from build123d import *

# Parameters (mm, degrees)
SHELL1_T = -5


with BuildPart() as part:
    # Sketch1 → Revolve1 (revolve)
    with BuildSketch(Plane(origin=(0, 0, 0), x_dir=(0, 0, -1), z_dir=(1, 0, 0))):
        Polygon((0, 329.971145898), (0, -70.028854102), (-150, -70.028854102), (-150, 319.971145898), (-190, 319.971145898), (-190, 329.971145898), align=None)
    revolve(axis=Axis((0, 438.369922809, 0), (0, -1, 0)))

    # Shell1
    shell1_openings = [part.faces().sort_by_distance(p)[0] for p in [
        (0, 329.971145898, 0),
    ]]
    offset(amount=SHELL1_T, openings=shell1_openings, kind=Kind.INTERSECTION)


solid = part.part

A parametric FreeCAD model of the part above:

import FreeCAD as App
import Part
import Sketcher

V = App.Vector


def faces_at(feature, points):
    """Names of the faces that lie closest to the given points."""
    faces = feature.Shape.Faces
    near = lambda p: min(range(len(faces)), key=lambda i: faces[i].distToShape(Part.Vertex(*p))[0])
    return sorted({f"Face{near(p) + 1}" for p in points})

doc = App.newDocument("Part")
body = doc.addObject("PartDesign::Body", "Body")

sketch1 = body.newObject("Sketcher::SketchObject", "Sketch")
sketch1.AttachmentSupport = (doc.getObject("YZ_Plane"), [""])
sketch1.MapMode = "FlatFace"
sketch1.addGeometry(Part.LineSegment(V(-70.028854, 0, 0), V(329.971146, 0, 0)), False)
sketch1.addGeometry(Part.LineSegment(V(329.971146, 0, 0), V(329.971146, 190, 0)), False)
sketch1.addGeometry(Part.LineSegment(V(329.971146, 190, 0), V(319.971146, 190, 0)), False)
sketch1.addGeometry(Part.LineSegment(V(319.971146, 190, 0), V(319.971146, 150, 0)), False)
sketch1.addGeometry(Part.LineSegment(V(319.971146, 150, 0), V(-70.028854, 150, 0)), False)
sketch1.addGeometry(Part.LineSegment(V(-70.028854, 150, 0), V(-70.028854, 0, 0)), False)
sketch1.addConstraint(Sketcher.Constraint("Coincident", 0, 2, 1, 1))
sketch1.addConstraint(Sketcher.Constraint("Coincident", 1, 2, 2, 1))
sketch1.addConstraint(Sketcher.Constraint("Coincident", 2, 2, 3, 1))
sketch1.addConstraint(Sketcher.Constraint("Coincident", 3, 2, 4, 1))
sketch1.addConstraint(Sketcher.Constraint("Coincident", 4, 2, 5, 1))
sketch1.addConstraint(Sketcher.Constraint("Coincident", 5, 2, 0, 1))
sketch1.addConstraint(Sketcher.Constraint("Horizontal", 0))
sketch1.addConstraint(Sketcher.Constraint("Vertical", 1))
sketch1.addConstraint(Sketcher.Constraint("Horizontal", 2))
sketch1.addConstraint(Sketcher.Constraint("Vertical", 3))
sketch1.addConstraint(Sketcher.Constraint("Horizontal", 4))
sketch1.addConstraint(Sketcher.Constraint("Vertical", 5))
sketch1.addConstraint(Sketcher.Constraint("PointOnObject", 0, 2, -1))
sketch1.addConstraint(Sketcher.Constraint("DistanceX", 0, 1, 0, 2, 400.0))
sketch1.addConstraint(Sketcher.Constraint("DistanceX", 2, 2, 2, 1, 10.0))
sketch1.addConstraint(Sketcher.Constraint("DistanceY", 1, 1, 1, 2, 190.0))
sketch1.addConstraint(Sketcher.Constraint("DistanceY", 3, 2, 3, 1, 40.0))
sketch1.addConstraint(Sketcher.Constraint("DistanceX", -1, 1, 0, 2, 329.971146))
revolution = body.newObject("PartDesign::Revolution", "Revolution")
revolution.Profile = sketch1
revolution.ReferenceAxis = (sketch1, ["H_Axis"])
revolution.Angle = 360
doc.recompute()

thickness = body.newObject("PartDesign::Thickness", "Thickness")
thickness.Base = (revolution, faces_at(revolution, [(0, 329.971, 0)]))
thickness.Value = 5
thickness.Reversed = True
thickness.Join = "Intersection"

doc.recompute()
